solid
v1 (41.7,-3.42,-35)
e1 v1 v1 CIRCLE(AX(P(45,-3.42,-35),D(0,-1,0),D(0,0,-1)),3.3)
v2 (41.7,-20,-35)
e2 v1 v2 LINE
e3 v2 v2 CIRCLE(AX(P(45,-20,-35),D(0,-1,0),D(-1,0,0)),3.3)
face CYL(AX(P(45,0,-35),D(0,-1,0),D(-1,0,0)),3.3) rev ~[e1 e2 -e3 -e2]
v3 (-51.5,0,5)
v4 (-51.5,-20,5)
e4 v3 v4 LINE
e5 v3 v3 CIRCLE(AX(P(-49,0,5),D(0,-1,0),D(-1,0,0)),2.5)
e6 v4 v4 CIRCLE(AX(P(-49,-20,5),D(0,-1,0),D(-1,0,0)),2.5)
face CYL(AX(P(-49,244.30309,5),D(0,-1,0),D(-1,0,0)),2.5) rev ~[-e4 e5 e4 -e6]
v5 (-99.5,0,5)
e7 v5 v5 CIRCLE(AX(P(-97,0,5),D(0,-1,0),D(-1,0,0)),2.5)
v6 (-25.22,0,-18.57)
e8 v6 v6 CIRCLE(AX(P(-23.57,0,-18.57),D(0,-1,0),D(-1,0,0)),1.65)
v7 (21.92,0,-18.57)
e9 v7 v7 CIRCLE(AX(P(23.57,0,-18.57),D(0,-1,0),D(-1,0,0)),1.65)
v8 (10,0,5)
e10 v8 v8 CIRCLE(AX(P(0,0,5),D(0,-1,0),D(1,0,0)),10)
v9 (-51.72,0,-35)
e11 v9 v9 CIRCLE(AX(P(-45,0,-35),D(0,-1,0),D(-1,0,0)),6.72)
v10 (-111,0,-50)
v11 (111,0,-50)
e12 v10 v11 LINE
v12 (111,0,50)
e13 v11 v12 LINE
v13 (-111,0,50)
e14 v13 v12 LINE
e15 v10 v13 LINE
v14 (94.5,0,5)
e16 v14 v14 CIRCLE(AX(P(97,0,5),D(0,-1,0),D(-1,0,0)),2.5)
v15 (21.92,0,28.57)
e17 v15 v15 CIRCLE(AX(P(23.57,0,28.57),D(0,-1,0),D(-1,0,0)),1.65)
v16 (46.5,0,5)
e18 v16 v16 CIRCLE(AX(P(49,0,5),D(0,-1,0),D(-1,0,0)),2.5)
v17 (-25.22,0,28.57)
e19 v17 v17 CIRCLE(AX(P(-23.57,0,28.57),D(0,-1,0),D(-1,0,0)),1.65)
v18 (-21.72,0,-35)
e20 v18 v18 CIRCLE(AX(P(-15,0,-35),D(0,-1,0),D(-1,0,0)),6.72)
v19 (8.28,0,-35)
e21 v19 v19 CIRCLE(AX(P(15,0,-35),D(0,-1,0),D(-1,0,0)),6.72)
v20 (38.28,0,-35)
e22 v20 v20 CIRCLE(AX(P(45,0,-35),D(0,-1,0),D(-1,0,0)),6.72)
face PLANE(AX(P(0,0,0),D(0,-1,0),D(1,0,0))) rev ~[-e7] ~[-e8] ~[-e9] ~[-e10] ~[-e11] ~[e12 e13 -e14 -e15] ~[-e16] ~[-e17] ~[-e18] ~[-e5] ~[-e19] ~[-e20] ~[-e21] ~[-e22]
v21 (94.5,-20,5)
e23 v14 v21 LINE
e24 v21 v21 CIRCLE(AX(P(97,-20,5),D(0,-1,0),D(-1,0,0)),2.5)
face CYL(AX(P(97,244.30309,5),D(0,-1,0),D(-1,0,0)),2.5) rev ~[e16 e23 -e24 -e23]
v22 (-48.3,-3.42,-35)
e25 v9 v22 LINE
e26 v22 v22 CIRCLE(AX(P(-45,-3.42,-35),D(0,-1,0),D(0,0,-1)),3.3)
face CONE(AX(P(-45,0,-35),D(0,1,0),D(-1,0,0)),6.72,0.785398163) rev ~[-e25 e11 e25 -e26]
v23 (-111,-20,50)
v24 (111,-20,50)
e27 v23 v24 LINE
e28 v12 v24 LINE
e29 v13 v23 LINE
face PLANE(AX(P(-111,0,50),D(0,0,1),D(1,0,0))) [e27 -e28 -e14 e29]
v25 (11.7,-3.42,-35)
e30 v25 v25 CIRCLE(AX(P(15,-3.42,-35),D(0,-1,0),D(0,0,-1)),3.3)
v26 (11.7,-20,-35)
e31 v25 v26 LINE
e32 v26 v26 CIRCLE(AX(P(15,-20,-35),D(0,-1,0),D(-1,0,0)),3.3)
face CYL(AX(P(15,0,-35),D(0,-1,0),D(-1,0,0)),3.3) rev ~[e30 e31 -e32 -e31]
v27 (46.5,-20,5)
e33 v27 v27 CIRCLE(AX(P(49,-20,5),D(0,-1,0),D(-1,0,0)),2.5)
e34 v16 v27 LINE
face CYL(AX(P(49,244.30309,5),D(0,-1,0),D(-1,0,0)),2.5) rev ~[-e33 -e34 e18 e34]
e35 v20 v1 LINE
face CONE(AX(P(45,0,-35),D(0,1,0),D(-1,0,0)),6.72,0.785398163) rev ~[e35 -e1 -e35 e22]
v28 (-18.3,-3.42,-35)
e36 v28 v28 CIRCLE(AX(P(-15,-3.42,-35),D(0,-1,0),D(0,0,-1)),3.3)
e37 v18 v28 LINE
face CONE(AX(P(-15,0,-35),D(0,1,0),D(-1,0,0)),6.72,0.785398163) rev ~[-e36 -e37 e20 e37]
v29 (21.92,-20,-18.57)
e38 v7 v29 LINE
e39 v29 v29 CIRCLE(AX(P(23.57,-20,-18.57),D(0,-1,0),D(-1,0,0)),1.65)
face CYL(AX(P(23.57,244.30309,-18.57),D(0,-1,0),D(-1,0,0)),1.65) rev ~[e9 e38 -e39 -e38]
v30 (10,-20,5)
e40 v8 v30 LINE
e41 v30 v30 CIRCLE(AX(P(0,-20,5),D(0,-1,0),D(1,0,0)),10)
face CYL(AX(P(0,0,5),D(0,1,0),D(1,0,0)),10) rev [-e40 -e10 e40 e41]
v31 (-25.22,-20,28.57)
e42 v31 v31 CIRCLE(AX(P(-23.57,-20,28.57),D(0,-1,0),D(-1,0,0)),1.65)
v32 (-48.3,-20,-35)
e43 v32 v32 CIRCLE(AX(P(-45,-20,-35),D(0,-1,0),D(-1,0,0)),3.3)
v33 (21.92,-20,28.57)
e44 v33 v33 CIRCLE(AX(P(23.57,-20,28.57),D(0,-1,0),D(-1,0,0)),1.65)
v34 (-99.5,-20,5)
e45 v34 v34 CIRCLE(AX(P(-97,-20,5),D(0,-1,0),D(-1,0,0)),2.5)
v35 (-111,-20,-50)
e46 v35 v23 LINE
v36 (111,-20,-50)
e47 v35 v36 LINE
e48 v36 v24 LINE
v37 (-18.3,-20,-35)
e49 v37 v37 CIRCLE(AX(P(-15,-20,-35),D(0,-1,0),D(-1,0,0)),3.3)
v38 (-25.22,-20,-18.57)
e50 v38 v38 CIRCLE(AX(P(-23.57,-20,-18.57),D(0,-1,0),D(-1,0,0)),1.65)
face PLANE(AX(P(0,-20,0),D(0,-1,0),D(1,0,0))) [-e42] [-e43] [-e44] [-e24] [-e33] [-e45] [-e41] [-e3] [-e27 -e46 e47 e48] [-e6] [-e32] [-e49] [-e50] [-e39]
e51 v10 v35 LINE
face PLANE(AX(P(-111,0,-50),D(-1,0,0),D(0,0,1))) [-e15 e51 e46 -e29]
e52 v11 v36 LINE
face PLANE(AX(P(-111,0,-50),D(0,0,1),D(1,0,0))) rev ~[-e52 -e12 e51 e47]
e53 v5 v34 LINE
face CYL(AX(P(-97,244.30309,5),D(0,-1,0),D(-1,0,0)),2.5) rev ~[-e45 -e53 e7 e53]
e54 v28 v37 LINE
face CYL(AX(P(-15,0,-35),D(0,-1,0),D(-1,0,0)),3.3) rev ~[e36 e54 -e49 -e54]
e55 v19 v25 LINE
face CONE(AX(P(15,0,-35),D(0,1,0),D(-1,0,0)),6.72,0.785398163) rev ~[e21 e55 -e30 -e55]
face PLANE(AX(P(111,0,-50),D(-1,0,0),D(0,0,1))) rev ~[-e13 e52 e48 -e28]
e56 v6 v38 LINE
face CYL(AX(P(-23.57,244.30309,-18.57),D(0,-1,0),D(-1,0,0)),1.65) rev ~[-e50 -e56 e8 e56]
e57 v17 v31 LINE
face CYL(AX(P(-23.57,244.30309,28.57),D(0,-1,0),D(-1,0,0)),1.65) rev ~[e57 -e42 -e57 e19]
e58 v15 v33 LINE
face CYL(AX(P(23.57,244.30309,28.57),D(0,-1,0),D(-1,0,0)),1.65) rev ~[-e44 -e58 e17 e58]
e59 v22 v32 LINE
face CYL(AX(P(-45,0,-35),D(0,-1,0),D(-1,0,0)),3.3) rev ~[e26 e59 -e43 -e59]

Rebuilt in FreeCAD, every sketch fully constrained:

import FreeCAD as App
import Part
import Sketcher
Q = App.Units.Quantity

doc = App.newDocument("Part")
body = doc.addObject("PartDesign::Body", "Body")

sketch1 = body.newObject("Sketcher::SketchObject", "Sketch")
sketch1.AttachmentSupport = (doc.getObject("XZ_Plane"), [""])
sketch1.MapMode = "FlatFace"
sketch1.addGeometry([
    Part.LineSegment(App.Vector(-111, 50, 0), App.Vector(-111, -50, 0)),
    Part.LineSegment(App.Vector(-111, -50, 0), App.Vector(111, -50, 0)),
    Part.LineSegment(App.Vector(111, -50, 0), App.Vector(111, 50, 0)),
    Part.LineSegment(App.Vector(111, 50, 0), App.Vector(-111, 50, 0)),
    Part.Circle(App.Vector(0, 5, 0), App.Vector(0, 0, 1), 10),
], False)
sketch1.addConstraint([
    Sketcher.Constraint("Coincident", 0, 2, 1, 1),
    Sketcher.Constraint("Coincident", 1, 2, 2, 1),
    Sketcher.Constraint("Coincident", 2, 2, 3, 1),
    Sketcher.Constraint("Coincident", 3, 2, 0, 1),
    Sketcher.Constraint("Vertical", 0),
    Sketcher.Constraint("Horizontal", 1),
    Sketcher.Constraint("Vertical", 2),
    Sketcher.Constraint("Horizontal", 3),
    Sketcher.Constraint("Symmetric", 0, 2, 2, 2, -1, 1),
    Sketcher.Constraint("PointOnObject", 4, 3, -2),
    Sketcher.Constraint("Diameter", 4, Q("20 mm")),
    Sketcher.Constraint("DistanceX", 1, 1, 1, 2, Q("222 mm")),
    Sketcher.Constraint("DistanceY", 0, 2, 0, 1, Q("100 mm")),
    Sketcher.Constraint("DistanceY", -1, 1, 4, 3, Q("5 mm")),
])
pad1 = body.newObject("PartDesign::Pad", "Pad")
pad1.Profile = sketch1
pad1.Length = 20

sketch2 = body.newObject("Sketcher::SketchObject", "Sketch001")
sketch2.AttachmentSupport = (doc.getObject("XZ_Plane"), [""])
sketch2.MapMode = "FlatFace"
sketch2.addGeometry([
    Part.Circle(App.Vector(49, 5, 0), App.Vector(0, 0, 1), 2.5),
    Part.Circle(App.Vector(97, 5, 0), App.Vector(0, 0, 1), 2.5),
    Part.Circle(App.Vector(-49, 5, 0), App.Vector(0, 0, 1), 2.5),
    Part.Circle(App.Vector(-97, 5, 0), App.Vector(0, 0, 1), 2.5),
], False)
sketch2.addConstraint([
    Sketcher.Constraint("Equal", 0, 1),
    Sketcher.Constraint("Equal", 1, 2),
    Sketcher.Constraint("Equal", 2, 3),
    Sketcher.Constraint("Symmetric", 0, 3, 2, 3, -2),
    Sketcher.Constraint("Symmetric", 1, 3, 3, 3, -2),
    Sketcher.Constraint("Horizontal", 0, 3, 1, 3),
    Sketcher.Constraint("Diameter", 0, Q("5 mm")),
    Sketcher.Constraint("DistanceX", -1, 1, 0, 3, Q("49 mm")),
    Sketcher.Constraint("DistanceY", -1, 1, 0, 3, Q("5 mm")),
    Sketcher.Constraint("DistanceX", -1, 1, 1, 3, Q("97 mm")),
])
doc.recompute()
hole = body.newObject("PartDesign::Hole", "Hole")
hole.Profile = sketch2
hole.ThreadType = "None"
hole.Diameter = 5
hole.DepthType = "ThroughAll"
hole.Reversed = True

sketch3 = body.newObject("Sketcher::SketchObject", "Sketch002")
sketch3.AttachmentSupport = (doc.getObject("XZ_Plane"), [""])
sketch3.MapMode = "FlatFace"
sketch3.addGeometry([
    Part.Circle(App.Vector(-45, -35, 0), App.Vector(0, 0, 1), 3.3),
    Part.Circle(App.Vector(-15, -35, 0), App.Vector(0, 0, 1), 3.3),
    Part.Circle(App.Vector(15, -35, 0), App.Vector(0, 0, 1), 3.3),
    Part.Circle(App.Vector(45, -35, 0), App.Vector(0, 0, 1), 3.3),
], False)
sketch3.addConstraint([
    Sketcher.Constraint("Equal", 0, 1),
    Sketcher.Constraint("Equal", 1, 2),
    Sketcher.Constraint("Equal", 2, 3),
    Sketcher.Constraint("Symmetric", 1, 3, 2, 3, -2),
    Sketcher.Constraint("Symmetric", 0, 3, 3, 3, -2),
    Sketcher.Constraint("Horizontal", 0, 3, 1, 3),
    Sketcher.Constraint("Diameter", 0, Q("6.6 mm")),
    Sketcher.Constraint("DistanceX", 0, 3, -1, 1, Q("45 mm")),
    Sketcher.Constraint("DistanceY", 0, 3, -1, 1, Q("35 mm")),
    Sketcher.Constraint("DistanceX", 1, 3, -1, 1, Q("15 mm")),
])
doc.recompute()
hole2 = body.newObject("PartDesign::Hole", "Hole001")
hole2.Profile = sketch3
hole2.ThreadType = "None"
hole2.Diameter = 6.6
hole2.DepthType = "ThroughAll"
hole2.HoleCutType = "Countersink"
hole2.HoleCutDiameter = 13.44
hole2.HoleCutCountersinkAngle = 90
hole2.Reversed = True

sketch4 = body.newObject("Sketcher::SketchObject", "Sketch003")
sketch4.AttachmentSupport = (doc.getObject("XZ_Plane"), [""])
sketch4.MapMode = "FlatFace"
sketch4.addGeometry([
    Part.Circle(App.Vector(23.57, 28.57, 0), App.Vector(0, 0, 1), 1.65),
    Part.Circle(App.Vector(-23.57, 28.57, 0), App.Vector(0, 0, 1), 1.65),
    Part.Circle(App.Vector(23.57, -18.57, 0), App.Vector(0, 0, 1), 1.65),
    Part.Circle(App.Vector(-23.57, -18.57, 0), App.Vector(0, 0, 1), 1.65),
], False)
sketch4.addConstraint([
    Sketcher.Constraint("Equal", 0, 1),
    Sketcher.Constraint("Equal", 1, 2),
    Sketcher.Constraint("Equal", 2, 3),
    Sketcher.Constraint("Symmetric", 0, 3, 1, 3, -2),
    Sketcher.Constraint("Symmetric", 2, 3, 3, 3, -2),
    Sketcher.Constraint("Vertical", 0, 3, 2, 3),
    Sketcher.Constraint("Diameter", 0, Q("3.3 mm")),
    Sketcher.Constraint("DistanceX", -1, 1, 0, 3, Q("23.57 mm")),
    Sketcher.Constraint("DistanceY", -1, 1, 0, 3, Q("28.57 mm")),
    Sketcher.Constraint("DistanceY", 2, 3, -1, 1, Q("18.57 mm")),
])
doc.recompute()
hole3 = body.newObject("PartDesign::Hole", "Hole002")
hole3.Profile = sketch4
hole3.ThreadType = "None"
hole3.Diameter = 3.3
hole3.DepthType = "ThroughAll"
hole3.Reversed = True

doc.recompute()
